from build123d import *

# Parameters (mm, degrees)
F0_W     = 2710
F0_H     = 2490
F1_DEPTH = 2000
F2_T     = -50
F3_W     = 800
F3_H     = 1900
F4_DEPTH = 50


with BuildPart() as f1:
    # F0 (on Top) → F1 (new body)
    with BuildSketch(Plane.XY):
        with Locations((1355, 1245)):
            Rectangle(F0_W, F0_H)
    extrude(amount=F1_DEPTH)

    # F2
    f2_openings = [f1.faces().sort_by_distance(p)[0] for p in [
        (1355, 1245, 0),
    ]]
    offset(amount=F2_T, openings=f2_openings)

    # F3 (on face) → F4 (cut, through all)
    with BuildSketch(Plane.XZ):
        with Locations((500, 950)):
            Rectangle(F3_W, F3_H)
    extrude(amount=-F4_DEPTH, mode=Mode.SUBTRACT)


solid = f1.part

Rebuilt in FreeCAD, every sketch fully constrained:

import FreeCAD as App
import Part
import Sketcher
from FreeCAD import Vector
Q = App.Units.Quantity


def faces_at(feature, points):
    """Names of the faces that lie closest to the given points."""
    faces = feature.Shape.Faces
    near = lambda p: min(range(len(faces)), key=lambda i: faces[i].distToShape(Part.Vertex(*p))[0])
    return sorted({f"Face{near(p) + 1}" for p in points})

doc = App.newDocument("Part")
body = doc.addObject("PartDesign::Body", "Body")

sketch1 = body.newObject("Sketcher::SketchObject", "Sketch")
sketch1.AttachmentSupport = (doc.getObject("XY_Plane"), [""])
sketch1.MapMode = "FlatFace"
sketch1.addGeometry(Part.LineSegment(Vector(0, 2490, 0), Vector(0, 0, 0)), False)
sketch1.addGeometry(Part.LineSegment(Vector(0, 0, 0), Vector(2710, 0, 0)), False)
sketch1.addGeometry(Part.LineSegment(Vector(2710, 0, 0), Vector(2710, 2490, 0)), False)
sketch1.addGeometry(Part.LineSegment(Vector(2710, 2490, 0), Vector(0, 2490, 0)), False)
sketch1.addConstraint(Sketcher.Constraint("Coincident", 0, 2, 1, 1))
sketch1.addConstraint(Sketcher.Constraint("Coincident", 1, 2, 2, 1))
sketch1.addConstraint(Sketcher.Constraint("Coincident", 2, 2, 3, 1))
sketch1.addConstraint(Sketcher.Constraint("Coincident", 3, 2, 0, 1))
sketch1.addConstraint(Sketcher.Constraint("Vertical", 0))
sketch1.addConstraint(Sketcher.Constraint("Horizontal", 1))
sketch1.addConstraint(Sketcher.Constraint("Vertical", 2))
sketch1.addConstraint(Sketcher.Constraint("Horizontal", 3))
sketch1.addConstraint(Sketcher.Constraint("Coincident", 0, 2, -1, 1))
sketch1.addConstraint(Sketcher.Constraint("DistanceX", 1, 1, 1, 2, Q("2710 mm")))
sketch1.addConstraint(Sketcher.Constraint("DistanceY", 0, 2, 0, 1, Q("2490 mm")))
pad1 = body.newObject("PartDesign::Pad", "Pad")
pad1.Profile = sketch1
pad1.Length = 2000
doc.recompute()

thickness = body.newObject("PartDesign::Thickness", "Thickness")
thickness.Base = (pad1, faces_at(pad1, [(1355, 1245, 0)]))
thickness.Value = 50
thickness.Reversed = True
thickness.Join = "Arc"

sketch2 = body.newObject("Sketcher::SketchObject", "Sketch001")
sketch2.AttachmentSupport = (doc.getObject("XZ_Plane"), [""])
sketch2.MapMode = "FlatFace"
sketch2.addGeometry(Part.LineSegment(Vector(100, 1900, 0), Vector(100, 0, 0)), False)
sketch2.addGeometry(Part.LineSegment(Vector(100, 0, 0), Vector(900, 0, 0)), False)
sketch2.addGeometry(Part.LineSegment(Vector(900, 0, 0), Vector(900, 1900, 0)), False)
sketch2.addGeometry(Part.LineSegment(Vector(900, 1900, 0), Vector(100, 1900, 0)), False)
sketch2.addConstraint(Sketcher.Constraint("Coincident", 0, 2, 1, 1))
sketch2.addConstraint(Sketcher.Constraint("Coincident", 1, 2, 2, 1))
sketch2.addConstraint(Sketcher.Constraint("Coincident", 2, 2, 3, 1))
sketch2.addConstraint(Sketcher.Constraint("Coincident", 3, 2, 0, 1))
sketch2.addConstraint(Sketcher.Constraint("Vertical", 0))
sketch2.addConstraint(Sketcher.Constraint("Horizontal", 1))
sketch2.addConstraint(Sketcher.Constraint("Vertical", 2))
sketch2.addConstraint(Sketcher.Constraint("Horizontal", 3))
sketch2.addConstraint(Sketcher.Constraint("PointOnObject", 0, 2, -1))
sketch2.addConstraint(Sketcher.Constraint("DistanceX", 1, 1, 1, 2, Q("800 mm")))
sketch2.addConstraint(Sketcher.Constraint("DistanceY", 0, 2, 0, 1, Q("1900 mm")))
sketch2.addConstraint(Sketcher.Constraint("DistanceX", -1, 1, 0, 2, Q("100 mm")))
pocket1 = body.newObject("PartDesign::Pocket", "Pocket")
pocket1.Profile = sketch2
pocket1.Length = 50

doc.recompute()
